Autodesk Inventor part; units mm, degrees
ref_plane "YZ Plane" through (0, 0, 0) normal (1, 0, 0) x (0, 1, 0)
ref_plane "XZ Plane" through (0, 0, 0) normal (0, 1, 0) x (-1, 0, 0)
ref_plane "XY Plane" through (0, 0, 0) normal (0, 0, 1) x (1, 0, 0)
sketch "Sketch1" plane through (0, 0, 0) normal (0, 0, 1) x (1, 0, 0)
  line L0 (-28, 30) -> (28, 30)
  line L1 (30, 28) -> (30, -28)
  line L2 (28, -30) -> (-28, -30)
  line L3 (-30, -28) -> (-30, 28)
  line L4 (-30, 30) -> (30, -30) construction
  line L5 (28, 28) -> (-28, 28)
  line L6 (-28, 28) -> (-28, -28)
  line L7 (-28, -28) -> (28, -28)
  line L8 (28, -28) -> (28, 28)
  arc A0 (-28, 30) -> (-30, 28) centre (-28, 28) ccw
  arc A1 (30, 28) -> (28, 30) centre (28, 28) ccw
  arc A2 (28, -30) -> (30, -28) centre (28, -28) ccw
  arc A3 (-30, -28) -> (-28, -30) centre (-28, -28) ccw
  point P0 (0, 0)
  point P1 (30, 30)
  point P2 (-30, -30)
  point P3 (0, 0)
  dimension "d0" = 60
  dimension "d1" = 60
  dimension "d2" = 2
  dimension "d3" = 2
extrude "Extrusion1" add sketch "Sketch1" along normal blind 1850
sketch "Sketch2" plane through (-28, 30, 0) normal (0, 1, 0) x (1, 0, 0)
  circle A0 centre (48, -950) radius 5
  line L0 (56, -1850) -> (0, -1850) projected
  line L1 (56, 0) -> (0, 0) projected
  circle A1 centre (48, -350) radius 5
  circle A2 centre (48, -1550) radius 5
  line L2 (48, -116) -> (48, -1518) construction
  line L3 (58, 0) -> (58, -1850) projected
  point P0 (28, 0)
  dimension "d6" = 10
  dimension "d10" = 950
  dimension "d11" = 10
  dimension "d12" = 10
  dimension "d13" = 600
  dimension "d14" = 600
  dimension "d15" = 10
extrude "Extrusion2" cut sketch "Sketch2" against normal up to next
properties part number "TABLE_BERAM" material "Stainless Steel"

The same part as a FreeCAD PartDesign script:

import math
import FreeCAD as App
import Part
import Sketcher
from FreeCAD import Vector
Q = App.Units.Quantity


def add_polygon(sketch, points):
    """Adds a closed chain of lines whose ends are joined by coincident constraints."""
    first, n = sketch.GeometryCount, len(points)
    for a, b in zip(points, points[1:] + points[:1]):
        sketch.addGeometry(Part.LineSegment(App.Vector(*a, 0), App.Vector(*b, 0)), False)
    for i in range(n):
        sketch.addConstraint(Sketcher.Constraint("Coincident", first + i, 2, first + (i + 1) % n, 1))

doc = App.newDocument("Part")
body = doc.addObject("PartDesign::Body", "Body")

sketch1 = doc.addObject("Sketcher::SketchObject", "Sketch")
body.addObject(sketch1)
sketch1.AttachmentSupport = (doc.XY_Plane, [""])
sketch1.MapMode = "FlatFace"
sketch1.addGeometry(Part.LineSegment(Vector(28, 30, 0), Vector(-28, 30, 0)), False)
sketch1.addGeometry(Part.ArcOfCircle(Part.Circle(Vector(-28, 28, 0), Vector(0, 0, 1), 2), math.radians(90), math.radians(180)), False)
sketch1.addGeometry(Part.LineSegment(Vector(-30, 28, 0), Vector(-30, -28, 0)), False)
sketch1.addGeometry(Part.ArcOfCircle(Part.Circle(Vector(-28, -28, 0), Vector(0, 0, 1), 2), math.radians(180), math.radians(270)), False)
sketch1.addGeometry(Part.LineSegment(Vector(-28, -30, 0), Vector(28, -30, 0)), False)
sketch1.addGeometry(Part.ArcOfCircle(Part.Circle(Vector(28, -28, 0), Vector(0, 0, 1), 2), math.radians(-90), math.radians(0)), False)
sketch1.addGeometry(Part.LineSegment(Vector(30, -28, 0), Vector(30, 28, 0)), False)
sketch1.addGeometry(Part.ArcOfCircle(Part.Circle(Vector(28, 28, 0), Vector(0, 0, 1), 2), math.radians(0), math.radians(90)), False)
add_polygon(sketch1, [(-28, 28), (28, 28), (28, -28), (-28, -28)])
sketch1.addConstraint([
    Sketcher.Constraint("Tangent", 0, 2, 1, 1),
    Sketcher.Constraint("Tangent", 1, 2, 2, 1),
    Sketcher.Constraint("Tangent", 2, 2, 3, 1),
    Sketcher.Constraint("Tangent", 3, 2, 4, 1),
    Sketcher.Constraint("Tangent", 4, 2, 5, 1),
    Sketcher.Constraint("Tangent", 5, 2, 6, 1),
    Sketcher.Constraint("Tangent", 6, 2, 7, 1),
    Sketcher.Constraint("Tangent", 7, 2, 0, 1),
    Sketcher.Constraint("Horizontal", 0),
    Sketcher.Constraint("Vertical", 2),
    Sketcher.Constraint("Horizontal", 4),
    Sketcher.Constraint("Vertical", 6),
    Sketcher.Constraint("Horizontal", 8),
    Sketcher.Constraint("Vertical", 9),
    Sketcher.Constraint("Horizontal", 10),
    Sketcher.Constraint("Vertical", 11),
    Sketcher.Constraint("Coincident", 8, 2, 7, 3),
    Sketcher.Constraint("Coincident", 9, 2, 5, 3),
    Sketcher.Constraint("Coincident", 10, 2, 3, 3),
    Sketcher.Constraint("Equal", 1, 3),
    Sketcher.Constraint("Symmetric", 1, 3, 5, 3, -1, 1),
    Sketcher.Constraint("Equal", 10, 2),
    Sketcher.Constraint("Radius", 1, Q("2 mm")),
    Sketcher.Constraint("DistanceX", 0, 2, 0, 1, Q("56 mm")),
])
pad1 = doc.addObject("PartDesign::Pad", "Pad")
body.addObject(pad1)
pad1.Profile = sketch1
pad1.Length = 1850

sketch2 = doc.addObject("Sketcher::SketchObject", "Sketch001")
body.addObject(sketch2)
sketch2.AttachmentSupport = (doc.XZ_Plane, [""])
sketch2.MapMode = "FlatFace"
sketch2.AttachmentOffset = App.Placement(Vector(0, 0, -30), App.Rotation())
sketch2.addGeometry([
    Part.Circle(Vector(20, 950, 0), Vector(0, 0, 1), 5),
    Part.Circle(Vector(20, 350, 0), Vector(0, 0, 1), 5),
    Part.Circle(Vector(20, 1550, 0), Vector(0, 0, 1), 5),
], False)
sketch2.addConstraint([
    Sketcher.Constraint("Equal", 0, 1),
    Sketcher.Constraint("Equal", 1, 2),
    Sketcher.Constraint("Vertical", 0, 3, 1, 3),
    Sketcher.Constraint("Vertical", 1, 3, 2, 3),
    Sketcher.Constraint("Diameter", 0, Q("10 mm")),
    Sketcher.Constraint("DistanceY", -1, 1, 0, 3, Q("950 mm")),
    Sketcher.Constraint("DistanceY", 1, 3, 0, 3, Q("600 mm")),
    Sketcher.Constraint("DistanceY", 0, 3, 2, 3, Q("600 mm")),
    Sketcher.Constraint("DistanceX", -1, 1, 0, 3, Q("20 mm")),
])
pocket1 = doc.addObject("PartDesign::Pocket", "Pocket")
body.addObject(pocket1)
pocket1.Profile = sketch2
pocket1.Length = 2
pocket1.Reversed = True

doc.recompute()
